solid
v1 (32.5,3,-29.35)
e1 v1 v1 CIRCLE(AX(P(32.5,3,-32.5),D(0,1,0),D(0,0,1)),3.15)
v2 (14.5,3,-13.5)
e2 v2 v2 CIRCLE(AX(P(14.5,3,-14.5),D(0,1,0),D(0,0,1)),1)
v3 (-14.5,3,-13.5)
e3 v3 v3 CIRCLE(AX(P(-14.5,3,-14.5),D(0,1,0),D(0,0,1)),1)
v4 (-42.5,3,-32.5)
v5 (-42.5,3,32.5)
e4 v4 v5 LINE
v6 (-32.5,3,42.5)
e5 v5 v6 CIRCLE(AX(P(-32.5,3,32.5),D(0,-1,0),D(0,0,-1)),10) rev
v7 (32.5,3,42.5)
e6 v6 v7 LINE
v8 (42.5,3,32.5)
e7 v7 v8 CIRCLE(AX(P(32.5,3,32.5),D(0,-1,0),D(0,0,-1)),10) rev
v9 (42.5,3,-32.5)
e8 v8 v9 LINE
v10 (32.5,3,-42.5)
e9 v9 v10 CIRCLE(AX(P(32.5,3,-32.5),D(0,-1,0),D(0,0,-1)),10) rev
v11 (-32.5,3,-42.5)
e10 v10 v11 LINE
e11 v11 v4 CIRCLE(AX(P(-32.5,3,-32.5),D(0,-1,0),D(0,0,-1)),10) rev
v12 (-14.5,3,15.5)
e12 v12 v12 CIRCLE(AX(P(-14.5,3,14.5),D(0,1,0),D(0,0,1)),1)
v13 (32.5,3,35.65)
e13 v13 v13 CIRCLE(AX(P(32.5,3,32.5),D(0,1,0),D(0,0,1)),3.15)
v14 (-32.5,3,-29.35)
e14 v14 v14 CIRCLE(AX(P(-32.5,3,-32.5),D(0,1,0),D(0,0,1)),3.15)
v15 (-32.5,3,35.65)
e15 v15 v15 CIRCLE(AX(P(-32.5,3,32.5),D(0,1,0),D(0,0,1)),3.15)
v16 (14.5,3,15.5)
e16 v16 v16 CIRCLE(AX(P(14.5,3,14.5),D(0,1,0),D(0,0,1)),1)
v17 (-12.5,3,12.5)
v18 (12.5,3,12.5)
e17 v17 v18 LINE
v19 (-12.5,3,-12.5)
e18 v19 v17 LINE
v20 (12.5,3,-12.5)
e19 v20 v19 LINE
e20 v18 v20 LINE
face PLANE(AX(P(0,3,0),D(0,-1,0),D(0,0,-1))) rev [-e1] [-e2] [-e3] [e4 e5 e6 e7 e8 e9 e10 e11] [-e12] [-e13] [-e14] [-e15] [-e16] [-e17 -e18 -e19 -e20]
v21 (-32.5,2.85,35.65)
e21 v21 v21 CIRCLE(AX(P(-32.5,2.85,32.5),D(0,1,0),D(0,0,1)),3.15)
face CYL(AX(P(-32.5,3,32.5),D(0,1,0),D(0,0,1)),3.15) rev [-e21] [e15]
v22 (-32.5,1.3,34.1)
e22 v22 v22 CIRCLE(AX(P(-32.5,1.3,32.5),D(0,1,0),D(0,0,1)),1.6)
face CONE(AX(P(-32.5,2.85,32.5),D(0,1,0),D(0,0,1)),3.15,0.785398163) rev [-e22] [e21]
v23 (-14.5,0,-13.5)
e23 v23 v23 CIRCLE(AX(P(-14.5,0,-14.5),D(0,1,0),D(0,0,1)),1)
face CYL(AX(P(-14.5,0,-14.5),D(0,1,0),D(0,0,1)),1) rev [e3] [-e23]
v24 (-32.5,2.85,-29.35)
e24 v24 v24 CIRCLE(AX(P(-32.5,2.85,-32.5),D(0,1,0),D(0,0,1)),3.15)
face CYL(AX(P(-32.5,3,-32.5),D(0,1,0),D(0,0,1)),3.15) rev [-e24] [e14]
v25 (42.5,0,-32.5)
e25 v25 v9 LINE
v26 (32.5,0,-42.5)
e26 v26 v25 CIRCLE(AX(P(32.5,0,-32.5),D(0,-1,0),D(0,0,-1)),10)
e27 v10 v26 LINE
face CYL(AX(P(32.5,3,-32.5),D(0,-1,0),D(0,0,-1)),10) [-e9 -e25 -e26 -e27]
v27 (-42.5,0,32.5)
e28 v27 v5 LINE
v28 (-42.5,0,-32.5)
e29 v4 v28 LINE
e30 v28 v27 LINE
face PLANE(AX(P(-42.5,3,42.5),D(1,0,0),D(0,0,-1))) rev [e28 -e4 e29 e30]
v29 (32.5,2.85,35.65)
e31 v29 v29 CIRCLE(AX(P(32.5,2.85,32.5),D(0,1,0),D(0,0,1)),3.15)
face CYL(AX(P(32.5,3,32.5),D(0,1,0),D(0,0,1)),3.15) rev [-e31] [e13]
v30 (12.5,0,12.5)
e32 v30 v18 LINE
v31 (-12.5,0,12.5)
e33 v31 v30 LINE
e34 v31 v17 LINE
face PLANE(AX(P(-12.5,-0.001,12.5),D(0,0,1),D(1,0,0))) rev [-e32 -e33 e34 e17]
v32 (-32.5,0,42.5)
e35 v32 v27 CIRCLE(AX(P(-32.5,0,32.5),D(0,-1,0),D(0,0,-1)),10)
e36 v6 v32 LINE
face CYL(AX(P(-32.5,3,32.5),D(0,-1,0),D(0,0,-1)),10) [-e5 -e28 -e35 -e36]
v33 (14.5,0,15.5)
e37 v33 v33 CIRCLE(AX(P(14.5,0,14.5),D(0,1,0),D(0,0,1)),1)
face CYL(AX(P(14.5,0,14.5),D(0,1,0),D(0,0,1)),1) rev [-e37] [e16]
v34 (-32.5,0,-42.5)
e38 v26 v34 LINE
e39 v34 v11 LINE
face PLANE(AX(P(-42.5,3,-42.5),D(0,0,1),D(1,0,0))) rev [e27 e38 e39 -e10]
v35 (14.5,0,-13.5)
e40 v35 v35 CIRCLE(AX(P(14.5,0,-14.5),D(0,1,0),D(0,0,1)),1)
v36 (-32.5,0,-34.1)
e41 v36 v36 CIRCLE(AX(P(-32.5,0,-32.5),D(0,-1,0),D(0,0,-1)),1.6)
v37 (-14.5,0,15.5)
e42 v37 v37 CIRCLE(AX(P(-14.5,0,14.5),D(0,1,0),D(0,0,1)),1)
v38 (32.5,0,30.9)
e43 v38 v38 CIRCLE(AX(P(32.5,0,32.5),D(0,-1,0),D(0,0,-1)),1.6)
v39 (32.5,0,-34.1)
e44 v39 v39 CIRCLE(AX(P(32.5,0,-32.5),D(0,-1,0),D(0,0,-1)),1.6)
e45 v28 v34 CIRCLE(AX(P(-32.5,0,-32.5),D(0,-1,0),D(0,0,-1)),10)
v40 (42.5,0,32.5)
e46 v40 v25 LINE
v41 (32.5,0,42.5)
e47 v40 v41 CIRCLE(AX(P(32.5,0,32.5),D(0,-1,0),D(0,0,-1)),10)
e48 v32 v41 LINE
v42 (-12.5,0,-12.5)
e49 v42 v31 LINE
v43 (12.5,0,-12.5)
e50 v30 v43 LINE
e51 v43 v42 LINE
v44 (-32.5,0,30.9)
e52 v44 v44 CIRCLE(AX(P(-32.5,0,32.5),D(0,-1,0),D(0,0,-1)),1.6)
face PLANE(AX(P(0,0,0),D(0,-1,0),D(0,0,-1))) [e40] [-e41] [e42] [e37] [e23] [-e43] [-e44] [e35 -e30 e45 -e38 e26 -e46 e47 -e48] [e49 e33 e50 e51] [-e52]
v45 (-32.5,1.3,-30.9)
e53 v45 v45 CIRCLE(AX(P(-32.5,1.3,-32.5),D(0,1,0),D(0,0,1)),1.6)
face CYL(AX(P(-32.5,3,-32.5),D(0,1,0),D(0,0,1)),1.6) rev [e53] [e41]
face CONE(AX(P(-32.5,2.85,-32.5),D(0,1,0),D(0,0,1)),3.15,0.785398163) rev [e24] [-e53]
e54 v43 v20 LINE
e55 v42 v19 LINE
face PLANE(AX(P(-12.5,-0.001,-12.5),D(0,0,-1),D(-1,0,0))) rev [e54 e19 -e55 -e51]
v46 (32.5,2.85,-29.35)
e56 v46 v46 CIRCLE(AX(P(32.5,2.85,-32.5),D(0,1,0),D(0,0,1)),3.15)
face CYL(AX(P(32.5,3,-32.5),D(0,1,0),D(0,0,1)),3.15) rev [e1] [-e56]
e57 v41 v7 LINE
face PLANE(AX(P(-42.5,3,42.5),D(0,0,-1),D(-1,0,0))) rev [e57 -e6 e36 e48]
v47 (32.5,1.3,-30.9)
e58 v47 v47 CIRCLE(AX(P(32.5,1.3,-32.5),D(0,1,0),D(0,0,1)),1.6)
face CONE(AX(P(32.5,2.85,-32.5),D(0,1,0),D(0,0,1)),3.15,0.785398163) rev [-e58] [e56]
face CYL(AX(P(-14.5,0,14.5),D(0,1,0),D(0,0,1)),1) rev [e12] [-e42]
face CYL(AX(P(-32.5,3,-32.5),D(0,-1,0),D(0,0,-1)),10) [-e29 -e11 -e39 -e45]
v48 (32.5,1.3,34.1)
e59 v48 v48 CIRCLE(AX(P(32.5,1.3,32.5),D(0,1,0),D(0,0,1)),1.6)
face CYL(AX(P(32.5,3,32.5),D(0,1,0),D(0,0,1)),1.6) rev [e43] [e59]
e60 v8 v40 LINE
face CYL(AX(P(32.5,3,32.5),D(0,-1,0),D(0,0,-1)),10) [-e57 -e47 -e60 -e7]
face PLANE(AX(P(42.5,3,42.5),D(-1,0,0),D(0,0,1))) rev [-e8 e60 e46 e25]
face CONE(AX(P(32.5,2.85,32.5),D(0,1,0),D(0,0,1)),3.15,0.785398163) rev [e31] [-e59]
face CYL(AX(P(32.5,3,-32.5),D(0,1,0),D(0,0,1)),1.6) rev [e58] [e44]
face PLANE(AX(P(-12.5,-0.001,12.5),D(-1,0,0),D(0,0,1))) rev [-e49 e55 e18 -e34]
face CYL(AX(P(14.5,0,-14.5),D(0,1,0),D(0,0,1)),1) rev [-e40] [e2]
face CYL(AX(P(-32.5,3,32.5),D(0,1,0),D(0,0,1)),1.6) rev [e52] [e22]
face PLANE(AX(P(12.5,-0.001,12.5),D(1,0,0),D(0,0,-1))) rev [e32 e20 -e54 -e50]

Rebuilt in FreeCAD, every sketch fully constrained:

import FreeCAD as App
import Part
import Sketcher
Q = App.Units.Quantity


def edges_at(feature, points):
    """Names of the edges that pass closest to the given points."""
    edges = feature.Shape.Edges
    near = lambda p: min(range(len(edges)), key=lambda i: edges[i].distToShape(Part.Vertex(*p))[0])
    return sorted({f"Edge{near(p) + 1}" for p in points})


def add_polygon(sketch, points):
    """Adds a closed chain of lines whose ends are joined by coincident constraints."""
    first, n = sketch.GeometryCount, len(points)
    for a, b in zip(points, points[1:] + points[:1]):
        sketch.addGeometry(Part.LineSegment(App.Vector(*a, 0), App.Vector(*b, 0)), False)
    for i in range(n):
        sketch.addConstraint(Sketcher.Constraint("Coincident", first + i, 2, first + (i + 1) % n, 1))

doc = App.newDocument("Part")
body = doc.addObject("PartDesign::Body", "Body")

# Sketch on XZ plane
sketch1 = body.newObject("Sketcher::SketchObject", "Sketch")
sketch1.AttachmentSupport = (doc.getObject("XZ_Plane"), [""])
sketch1.MapMode = "FlatFace"
add_polygon(sketch1, [(-42, -42), (-42, 42), (42, 42), (42, -42)])  # lines 0-3
sketch1.addConstraint(Sketcher.Constraint("Vertical", 0))
sketch1.addConstraint(Sketcher.Constraint("Horizontal", 1))
sketch1.addConstraint(Sketcher.Constraint("Vertical", 2))
sketch1.addConstraint(Sketcher.Constraint("Horizontal", 3))
sketch1.addConstraint(Sketcher.Constraint("Symmetric", 0, 2, 2, 2, -1, 1))
sketch1.addConstraint(Sketcher.Constraint("Equal", 3, 0))
sketch1.addConstraint(Sketcher.Constraint("DistanceX", 1, 1, 1, 2, 85.0))
pad1 = body.newObject("PartDesign::Pad", "Pad")
pad1.Profile = sketch1
pad1.Length = 3
pad1.Reversed = True
doc.recompute()

fillet = body.newObject("PartDesign::Fillet", "Fillet")
fillet.Base = (pad1, edges_at(pad1, [
    (42.5, 1.5, 42.5),
    (-42.5, 1.5, 42.5),
    (-42.5, 1.5, -42.5),
    (42.5, 1.5, -42.5),
]))
fillet.Radius = 10

# Sketch on XZ plane
sketch2 = body.newObject("Sketcher::SketchObject", "Sketch001")
sketch2.AttachmentSupport = (doc.getObject("XZ_Plane"), [""])
sketch2.MapMode = "FlatFace"
sketch2.AttachmentOffset = App.Placement(App.Vector(0, 0, -3), App.Rotation())
add_polygon(sketch2, [(-12, -12), (-12, 12), (12, 12), (12, -12)])  # lines 0-3
sketch2.addConstraint(Sketcher.Constraint("Vertical", 0))
sketch2.addConstraint(Sketcher.Constraint("Horizontal", 1))
sketch2.addConstraint(Sketcher.Constraint("Vertical", 2))
sketch2.addConstraint(Sketcher.Constraint("Horizontal", 3))
sketch2.addConstraint(Sketcher.Constraint("Symmetric", 0, 2, 2, 2, -1, 1))
sketch2.addConstraint(Sketcher.Constraint("Equal", 3, 0))
sketch2.addConstraint(Sketcher.Constraint("DistanceX", 1, 1, 1, 2, 25.0))
pocket1 = body.newObject("PartDesign::Pocket", "Pocket")
pocket1.Profile = sketch2
pocket1.Type = "UpToFirst"
pocket1.Reversed = True

# Sketch on YZ plane
sketch3 = body.newObject("Sketcher::SketchObject", "Sketch002")
sketch3.AttachmentSupport = (doc.getObject("YZ_Plane"), [""])
sketch3.MapMode = "FlatFace"
sketch3.AttachmentOffset = App.Placement(App.Vector(0, 0, 32.5), App.Rotation())
add_polygon(sketch3, [(0, -32.5), (3, -32.5), (3, -29.35), (2.85, -29.35), (1.3, -30.9), (0, -30.9)])  # lines 0-5
sketch3.addGeometry(Part.LineSegment(App.Vector(3, -32.5, 0), App.Vector(0, -32.5, 0)), True)  # axis
sketch3.addConstraint(Sketcher.Constraint("Horizontal", 0))
sketch3.addConstraint(Sketcher.Constraint("Vertical", 1))
sketch3.addConstraint(Sketcher.Constraint("Horizontal", 2))
sketch3.addConstraint(Sketcher.Constraint("Horizontal", 4))
sketch3.addConstraint(Sketcher.Constraint("Vertical", 5))
sketch3.addConstraint(Sketcher.Constraint("Horizontal", 6))
sketch3.addConstraint(Sketcher.Constraint("Coincident", 6, 1, 0, 2))
sketch3.addConstraint(Sketcher.Constraint("PointOnObject", 4, 2, -2))
sketch3.addConstraint(Sketcher.Constraint("PointOnObject", 6, 2, -2))
sketch3.addConstraint(Sketcher.Constraint("DistanceX", 0, 1, 0, 2, 3.0))
sketch3.addConstraint(Sketcher.Constraint("Angle", 3, Q("-135 deg")))
sketch3.addConstraint(Sketcher.Constraint("DistanceX", 4, 2, 4, 1, 1.3))
sketch3.addConstraint(Sketcher.Constraint("DistanceY", 5, 2, 5, 1, 1.6))
sketch3.addConstraint(Sketcher.Constraint("DistanceX", 2, 2, 2, 1, 0.15))
sketch3.addConstraint(Sketcher.Constraint("DistanceY", 0, 2, -1, 1, 32.5))
groove = body.newObject("PartDesign::Groove", "Groove")
groove.Profile = sketch3
groove.ReferenceAxis = (sketch3, ["Axis0"])
groove.Angle = 360
doc.recompute()

linearpattern = body.newObject("PartDesign::LinearPattern", "LinearPattern")
linearpattern.Originals = [groove]
linearpattern.Direction = (doc.getObject("Z_Axis"), [""])
linearpattern.Mode = "offset"
linearpattern.Offset = 65
linearpattern.Occurrences = 2
body.Tip = linearpattern
doc.recompute()

datumline = body.newObject("PartDesign::Line", "DatumLine")
datumline.Placement = App.Placement(App.Vector(0, 0, 0), App.Rotation(App.Vector(0, 0, 1), App.Vector(-0.707106781, 0, 0.707106781)))
linearpattern2 = body.newObject("PartDesign::LinearPattern", "LinearPattern001")
linearpattern2.Originals = [groove]
linearpattern2.Direction = (datumline, [""])
linearpattern2.Mode = "offset"
linearpattern2.Offset = 91.923882
linearpattern2.Occurrences = 2
body.Tip = linearpattern2
doc.recompute()

linearpattern3 = body.newObject("PartDesign::LinearPattern", "LinearPattern002")
linearpattern3.Originals = [groove]
linearpattern3.Direction = (doc.getObject("X_Axis"), [""])
linearpattern3.Mode = "offset"
linearpattern3.Offset = 65
linearpattern3.Occurrences = 2
linearpattern3.Reversed = True
body.Tip = linearpattern3

# Sketch on XZ plane
sketch4 = body.newObject("Sketcher::SketchObject", "Sketch003")
sketch4.AttachmentSupport = (doc.getObject("XZ_Plane"), [""])
sketch4.MapMode = "FlatFace"
sketch4.AttachmentOffset = App.Placement(App.Vector(0, 0, -3), App.Rotation())
sketch4.addGeometry(Part.Circle(App.Vector(-14.5, -14.5, 0), App.Vector(0, 0, 1), 1), False)
sketch4.addGeometry(Part.Circle(App.Vector(14.5, -14.5, 0), App.Vector(0, 0, 1), 1), False)
sketch4.addGeometry(Part.Circle(App.Vector(14.5, 14.5, 0), App.Vector(0, 0, 1), 1), False)
sketch4.addGeometry(Part.Circle(App.Vector(-14.5, 14.5, 0), App.Vector(0, 0, 1), 1), False)
sketch4.addConstraint(Sketcher.Constraint("Equal", 0, 1))
sketch4.addConstraint(Sketcher.Constraint("Equal", 1, 2))
sketch4.addConstraint(Sketcher.Constraint("Equal", 2, 3))
sketch4.addConstraint(Sketcher.Constraint("Symmetric", 0, 3, 2, 3, -1, 1))
sketch4.addConstraint(Sketcher.Constraint("Symmetric", 1, 3, 3, 3, -1, 1))
sketch4.addConstraint(Sketcher.Constraint("Symmetric", 0, 3, 1, 3, -2))
sketch4.addConstraint(Sketcher.Constraint("Diameter", 0, 2.0))
sketch4.addConstraint(Sketcher.Constraint("DistanceX", 0, 3, 1, 3, 29.0))
sketch4.addConstraint(Sketcher.Constraint("DistanceY", 1, 3, 2, 3, 29.0))
pocket2 = body.newObject("PartDesign::Pocket", "Pocket001")
pocket2.Profile = sketch4
pocket2.Type = "ThroughAll"
pocket2.Reversed = True

doc.recompute()
